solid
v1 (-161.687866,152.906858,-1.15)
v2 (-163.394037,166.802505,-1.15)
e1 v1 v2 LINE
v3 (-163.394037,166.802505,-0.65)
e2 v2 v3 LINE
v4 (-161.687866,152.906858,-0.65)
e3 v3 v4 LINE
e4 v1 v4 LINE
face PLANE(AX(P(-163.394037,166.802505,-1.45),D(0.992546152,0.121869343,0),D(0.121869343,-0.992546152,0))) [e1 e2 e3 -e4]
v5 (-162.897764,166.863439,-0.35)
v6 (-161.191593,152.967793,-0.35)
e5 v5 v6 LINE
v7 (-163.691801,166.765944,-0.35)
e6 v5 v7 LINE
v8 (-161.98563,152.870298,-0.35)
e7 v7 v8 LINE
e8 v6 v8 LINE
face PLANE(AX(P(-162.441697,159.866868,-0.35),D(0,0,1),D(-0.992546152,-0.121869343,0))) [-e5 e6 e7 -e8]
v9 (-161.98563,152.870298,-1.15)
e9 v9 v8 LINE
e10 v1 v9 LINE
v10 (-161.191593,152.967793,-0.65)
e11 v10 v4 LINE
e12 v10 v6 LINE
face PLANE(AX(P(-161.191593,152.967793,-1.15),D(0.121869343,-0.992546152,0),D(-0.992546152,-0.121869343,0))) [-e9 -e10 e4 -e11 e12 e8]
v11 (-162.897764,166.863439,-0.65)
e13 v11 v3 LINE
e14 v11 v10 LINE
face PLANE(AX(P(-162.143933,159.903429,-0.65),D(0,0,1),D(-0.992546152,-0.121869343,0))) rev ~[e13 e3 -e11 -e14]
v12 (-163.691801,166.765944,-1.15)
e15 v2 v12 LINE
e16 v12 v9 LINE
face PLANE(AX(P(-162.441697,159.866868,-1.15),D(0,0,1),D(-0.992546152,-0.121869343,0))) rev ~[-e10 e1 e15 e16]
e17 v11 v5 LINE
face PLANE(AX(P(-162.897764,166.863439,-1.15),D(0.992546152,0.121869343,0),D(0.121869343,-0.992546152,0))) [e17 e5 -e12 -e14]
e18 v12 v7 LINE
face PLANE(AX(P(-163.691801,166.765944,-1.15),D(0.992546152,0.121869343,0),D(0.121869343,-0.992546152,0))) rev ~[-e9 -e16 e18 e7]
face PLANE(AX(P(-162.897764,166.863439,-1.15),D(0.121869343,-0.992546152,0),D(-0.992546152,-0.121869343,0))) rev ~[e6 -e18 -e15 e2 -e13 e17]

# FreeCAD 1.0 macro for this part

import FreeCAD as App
import Part
import Sketcher
from FreeCAD import Vector

doc = App.newDocument("Part")
body = doc.addObject("PartDesign::Body", "Body")

sketch1 = body.newObject("Sketcher::SketchObject", "Sketch")
sketch1.AttachmentSupport = (doc.getObject("XY_Plane"), [""])
sketch1.MapMode = "FlatFace"
sketch1.addGeometry([
    Part.LineSegment(Vector(0, 14, 0), Vector(0, 0, 0)),
    Part.LineSegment(Vector(0, 0, 0), Vector(0.8, 0, 0)),
    Part.LineSegment(Vector(0.8, 0, 0), Vector(0.8, 14, 0)),
    Part.LineSegment(Vector(0.8, 14, 0), Vector(0, 14, 0)),
], False)
sketch1.addConstraint([
    Sketcher.Constraint("Coincident", 0, 2, 1, 1),
    Sketcher.Constraint("Coincident", 1, 2, 2, 1),
    Sketcher.Constraint("Coincident", 2, 2, 3, 1),
    Sketcher.Constraint("Coincident", 3, 2, 0, 1),
    Sketcher.Constraint("Vertical", 0),
    Sketcher.Constraint("Horizontal", 1),
    Sketcher.Constraint("Vertical", 2),
    Sketcher.Constraint("Horizontal", 3),
    Sketcher.Constraint("Coincident", 0, 2, -1, 1),
    Sketcher.Constraint("DistanceY", 0, 2, 0, 1, 14.0),
    Sketcher.Constraint("DistanceX", 1, 1, 1, 2, 0.8),
])
pad1 = body.newObject("PartDesign::Pad", "Pad")
pad1.Profile = sketch1
pad1.Length = 0.8
body2 = doc.addObject("PartDesign::Body", "Body001")

sketch2 = body2.newObject("Sketcher::SketchObject", "Sketch001")
sketch2.AttachmentSupport = (doc.getObject("XY_Plane001"), [""])
sketch2.MapMode = "FlatFace"
sketch2.AttachmentOffset = App.Placement(Vector(0, 0, 0.3), App.Rotation())
sketch2.addGeometry([
    Part.LineSegment(Vector(0.3, 14, 0), Vector(0.3, 0, 0)),
    Part.LineSegment(Vector(0.3, 0, 0), Vector(1.1, 0, 0)),
    Part.LineSegment(Vector(1.1, 0, 0), Vector(1.1, 14, 0)),
    Part.LineSegment(Vector(1.1, 14, 0), Vector(0.3, 14, 0)),
], False)
sketch2.addConstraint([
    Sketcher.Constraint("Coincident", 0, 2, 1, 1),
    Sketcher.Constraint("Coincident", 1, 2, 2, 1),
    Sketcher.Constraint("Coincident", 2, 2, 3, 1),
    Sketcher.Constraint("Coincident", 3, 2, 0, 1),
    Sketcher.Constraint("Vertical", 0),
    Sketcher.Constraint("Horizontal", 1),
    Sketcher.Constraint("Vertical", 2),
    Sketcher.Constraint("Horizontal", 3),
    Sketcher.Constraint("PointOnObject", 0, 2, -1),
    Sketcher.Constraint("DistanceY", 0, 2, 0, 1, 14.0),
    Sketcher.Constraint("DistanceX", 1, 1, 1, 2, 0.8),
    Sketcher.Constraint("DistanceX", -1, 1, 0, 2, 0.3),
])
pad2 = body2.newObject("PartDesign::Pad", "Pad001")
pad2.Profile = sketch2
pad2.Length = 0.8
doc.recompute()

boolean = body2.newObject("PartDesign::Boolean", "Boolean")
boolean.Type = "Cut"
boolean.addObjects([body])
body3 = doc.addObject("PartDesign::Body", "Body002")
doc.recompute()

body2.Placement = App.Placement(Vector(-162.6, 166.9, -1.45), App.Rotation(Vector(0, 0, 1), 187))
boolean2 = body3.newObject("PartDesign::Boolean", "Boolean001")
boolean2.Type = "Fuse"
boolean2.addObjects([body2])

doc.recompute()
